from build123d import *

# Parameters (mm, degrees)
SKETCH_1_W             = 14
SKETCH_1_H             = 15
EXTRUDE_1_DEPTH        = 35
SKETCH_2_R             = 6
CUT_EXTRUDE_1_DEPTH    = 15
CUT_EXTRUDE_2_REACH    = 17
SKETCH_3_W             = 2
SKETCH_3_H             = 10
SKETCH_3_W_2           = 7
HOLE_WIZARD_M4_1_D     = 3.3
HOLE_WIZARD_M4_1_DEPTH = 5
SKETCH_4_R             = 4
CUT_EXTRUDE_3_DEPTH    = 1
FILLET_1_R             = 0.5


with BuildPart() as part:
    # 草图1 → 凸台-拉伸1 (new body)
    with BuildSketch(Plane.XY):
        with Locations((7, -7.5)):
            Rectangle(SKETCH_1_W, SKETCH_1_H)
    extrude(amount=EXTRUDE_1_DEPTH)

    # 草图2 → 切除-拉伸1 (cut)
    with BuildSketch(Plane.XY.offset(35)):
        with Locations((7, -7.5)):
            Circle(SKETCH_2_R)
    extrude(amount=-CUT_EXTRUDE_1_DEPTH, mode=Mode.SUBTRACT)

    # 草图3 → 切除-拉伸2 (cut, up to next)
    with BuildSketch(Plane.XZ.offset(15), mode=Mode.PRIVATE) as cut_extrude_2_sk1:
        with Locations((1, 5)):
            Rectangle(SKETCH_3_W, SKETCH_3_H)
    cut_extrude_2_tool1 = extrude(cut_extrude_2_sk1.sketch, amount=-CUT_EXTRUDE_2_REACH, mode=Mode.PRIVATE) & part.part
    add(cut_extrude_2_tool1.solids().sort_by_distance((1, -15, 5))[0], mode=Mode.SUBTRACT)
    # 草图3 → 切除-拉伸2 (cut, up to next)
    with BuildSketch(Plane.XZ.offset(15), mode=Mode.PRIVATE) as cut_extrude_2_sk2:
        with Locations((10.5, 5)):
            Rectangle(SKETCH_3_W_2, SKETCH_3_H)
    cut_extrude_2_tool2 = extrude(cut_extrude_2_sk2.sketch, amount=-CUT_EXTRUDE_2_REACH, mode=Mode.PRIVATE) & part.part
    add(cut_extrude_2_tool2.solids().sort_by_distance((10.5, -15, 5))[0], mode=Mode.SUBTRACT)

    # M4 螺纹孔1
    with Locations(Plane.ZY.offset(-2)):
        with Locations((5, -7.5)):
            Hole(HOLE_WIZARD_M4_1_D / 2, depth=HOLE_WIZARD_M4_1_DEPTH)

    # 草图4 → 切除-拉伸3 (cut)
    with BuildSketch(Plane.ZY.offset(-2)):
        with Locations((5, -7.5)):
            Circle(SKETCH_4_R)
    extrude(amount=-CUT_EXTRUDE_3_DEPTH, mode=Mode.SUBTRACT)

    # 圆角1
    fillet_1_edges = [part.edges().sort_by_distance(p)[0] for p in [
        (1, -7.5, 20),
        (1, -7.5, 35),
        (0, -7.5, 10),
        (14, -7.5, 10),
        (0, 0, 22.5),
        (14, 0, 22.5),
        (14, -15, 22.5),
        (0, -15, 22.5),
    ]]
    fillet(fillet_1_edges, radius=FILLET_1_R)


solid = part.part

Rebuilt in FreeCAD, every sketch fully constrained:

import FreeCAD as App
import Part
import Sketcher

V = App.Vector
Q = App.Units.Quantity


def edges_at(feature, points):
    """Names of the edges that pass closest to the given points."""
    edges = feature.Shape.Edges
    near = lambda p: min(range(len(edges)), key=lambda i: edges[i].distToShape(Part.Vertex(*p))[0])
    return sorted({f"Edge{near(p) + 1}" for p in points})


def add_polygon(sketch, points):
    """Adds a closed chain of lines whose ends are joined by coincident constraints."""
    first, n = sketch.GeometryCount, len(points)
    for a, b in zip(points, points[1:] + points[:1]):
        sketch.addGeometry(Part.LineSegment(App.Vector(*a, 0), App.Vector(*b, 0)), False)
    for i in range(n):
        sketch.addConstraint(Sketcher.Constraint("Coincident", first + i, 2, first + (i + 1) % n, 1))

doc = App.newDocument("Part")
body = doc.addObject("PartDesign::Body", "Body")

# Sketch on XY plane
sketch1 = body.newObject("Sketcher::SketchObject", "Sketch")
sketch1.AttachmentSupport = (doc.getObject("XY_Plane"), [""])
sketch1.MapMode = "FlatFace"
add_polygon(sketch1, [(0, 0), (0, -15), (14, -15), (14, 0)])  # lines 0-3
sketch1.addConstraint([
    Sketcher.Constraint("Vertical", 0),
    Sketcher.Constraint("Horizontal", 1),
    Sketcher.Constraint("Vertical", 2),
    Sketcher.Constraint("Horizontal", 3),
    Sketcher.Constraint("Coincident", 3, 2, -1, 1),
    Sketcher.Constraint("DistanceX", 1, 1, 1, 2, Q("14 mm")),
    Sketcher.Constraint("DistanceY", 0, 2, 0, 1, Q("15 mm")),
])
pad1 = body.newObject("PartDesign::Pad", "Pad")
pad1.Profile = sketch1
pad1.Length = 35

# Sketch on XY plane
sketch2 = body.newObject("Sketcher::SketchObject", "Sketch001")
sketch2.AttachmentSupport = (doc.getObject("XY_Plane"), [""])
sketch2.MapMode = "FlatFace"
sketch2.AttachmentOffset = App.Placement(V(0, 0, 35), App.Rotation())
sketch2.addGeometry(Part.Circle(V(7, -8, 0), V(0, 0, 1), 6), False)
sketch2.addConstraint([
    Sketcher.Constraint("Diameter", 0, Q("12 mm")),
    Sketcher.Constraint("DistanceX", -1, 1, 0, 3, Q("7 mm")),
    Sketcher.Constraint("DistanceY", 0, 3, -1, 1, Q("7.5 mm")),
])
pocket1 = body.newObject("PartDesign::Pocket", "Pocket")
pocket1.Profile = sketch2
pocket1.Length = 15

# Sketch on XZ plane
sketch3 = body.newObject("Sketcher::SketchObject", "Sketch002")
sketch3.AttachmentSupport = (doc.getObject("XZ_Plane"), [""])
sketch3.MapMode = "FlatFace"
sketch3.AttachmentOffset = App.Placement(V(0, 0, 15), App.Rotation())
add_polygon(sketch3, [(0, 10), (0, 0), (2, 0), (2, 10)])  # lines 0-3
sketch3.addConstraint([
    Sketcher.Constraint("Vertical", 0),
    Sketcher.Constraint("Horizontal", 1),
    Sketcher.Constraint("Vertical", 2),
    Sketcher.Constraint("Horizontal", 3),
    Sketcher.Constraint("Coincident", 0, 2, -1, 1),
    Sketcher.Constraint("DistanceX", 1, 1, 1, 2, Q("2 mm")),
    Sketcher.Constraint("DistanceY", 0, 2, 0, 1, Q("10 mm")),
])
pocket2 = body.newObject("PartDesign::Pocket", "Pocket001")
pocket2.Profile = sketch3
pocket2.Type = "UpToFirst"

# Sketch on XZ plane
sketch4 = body.newObject("Sketcher::SketchObject", "Sketch003")
sketch4.AttachmentSupport = (doc.getObject("XZ_Plane"), [""])
sketch4.MapMode = "FlatFace"
sketch4.AttachmentOffset = App.Placement(V(0, 0, 15), App.Rotation())
add_polygon(sketch4, [(7, 10), (7, 0), (14, 0), (14, 10)])  # lines 0-3
sketch4.addConstraint([
    Sketcher.Constraint("Vertical", 0),
    Sketcher.Constraint("Horizontal", 1),
    Sketcher.Constraint("Vertical", 2),
    Sketcher.Constraint("Horizontal", 3),
    Sketcher.Constraint("PointOnObject", 0, 2, -1),
    Sketcher.Constraint("DistanceX", 1, 1, 1, 2, Q("7 mm")),
    Sketcher.Constraint("DistanceY", 0, 2, 0, 1, Q("10 mm")),
    Sketcher.Constraint("DistanceX", -1, 1, 0, 2, Q("7 mm")),
])
pocket3 = body.newObject("PartDesign::Pocket", "Pocket002")
pocket3.Profile = sketch4
pocket3.Type = "UpToFirst"

# Sketch on YZ plane
sketch5 = body.newObject("Sketcher::SketchObject", "Sketch004")
sketch5.AttachmentSupport = (doc.getObject("YZ_Plane"), [""])
sketch5.MapMode = "FlatFace"
sketch5.AttachmentOffset = App.Placement(V(0, 0, 2), App.Rotation())
sketch5.addGeometry(Part.Circle(V(-7.5, 5, 0), V(0, 0, 1), 1.6), False)
sketch5.addConstraint([
    Sketcher.Constraint("Diameter", 0, Q("3.3 mm")),
    Sketcher.Constraint("DistanceY", -1, 1, 0, 3, Q("5 mm")),
    Sketcher.Constraint("DistanceX", 0, 3, -1, 1, Q("7.5 mm")),
])
doc.recompute()
hole = body.newObject("PartDesign::Hole", "Hole")
hole.Profile = sketch5
hole.ThreadType = "None"
hole.Diameter = 3.3
hole.DepthType = "Dimension"
hole.Depth = 5
hole.DrillPoint = "Flat"
hole.Reversed = True

# Sketch on YZ plane
sketch6 = body.newObject("Sketcher::SketchObject", "Sketch005")
sketch6.AttachmentSupport = (doc.getObject("YZ_Plane"), [""])
sketch6.MapMode = "FlatFace"
sketch6.AttachmentOffset = App.Placement(V(0, 0, 2), App.Rotation())
sketch6.addGeometry(Part.Circle(V(-7.5, 5, 0), V(0, 0, 1), 4), False)
sketch6.addConstraint([
    Sketcher.Constraint("Diameter", 0, Q("8 mm")),
    Sketcher.Constraint("DistanceY", -1, 1, 0, 3, Q("5 mm")),
    Sketcher.Constraint("DistanceX", 0, 3, -1, 1, Q("7.5 mm")),
])
pocket4 = body.newObject("PartDesign::Pocket", "Pocket003")
pocket4.Profile = sketch6
pocket4.Length = 1
pocket4.Reversed = True
doc.recompute()

fillet = body.newObject("PartDesign::Fillet", "Fillet")
fillet.Base = (pocket4, edges_at(pocket4, [
    (1, -7.5, 20),
    (1, -7.5, 35),
    (0, -7.5, 10),
    (14, -7.5, 10),
    (0, 0, 22.5),
    (14, 0, 22.5),
    (14, -15, 22.5),
    (0, -15, 22.5),
]))
fillet.Radius = 0.5

doc.recompute()
